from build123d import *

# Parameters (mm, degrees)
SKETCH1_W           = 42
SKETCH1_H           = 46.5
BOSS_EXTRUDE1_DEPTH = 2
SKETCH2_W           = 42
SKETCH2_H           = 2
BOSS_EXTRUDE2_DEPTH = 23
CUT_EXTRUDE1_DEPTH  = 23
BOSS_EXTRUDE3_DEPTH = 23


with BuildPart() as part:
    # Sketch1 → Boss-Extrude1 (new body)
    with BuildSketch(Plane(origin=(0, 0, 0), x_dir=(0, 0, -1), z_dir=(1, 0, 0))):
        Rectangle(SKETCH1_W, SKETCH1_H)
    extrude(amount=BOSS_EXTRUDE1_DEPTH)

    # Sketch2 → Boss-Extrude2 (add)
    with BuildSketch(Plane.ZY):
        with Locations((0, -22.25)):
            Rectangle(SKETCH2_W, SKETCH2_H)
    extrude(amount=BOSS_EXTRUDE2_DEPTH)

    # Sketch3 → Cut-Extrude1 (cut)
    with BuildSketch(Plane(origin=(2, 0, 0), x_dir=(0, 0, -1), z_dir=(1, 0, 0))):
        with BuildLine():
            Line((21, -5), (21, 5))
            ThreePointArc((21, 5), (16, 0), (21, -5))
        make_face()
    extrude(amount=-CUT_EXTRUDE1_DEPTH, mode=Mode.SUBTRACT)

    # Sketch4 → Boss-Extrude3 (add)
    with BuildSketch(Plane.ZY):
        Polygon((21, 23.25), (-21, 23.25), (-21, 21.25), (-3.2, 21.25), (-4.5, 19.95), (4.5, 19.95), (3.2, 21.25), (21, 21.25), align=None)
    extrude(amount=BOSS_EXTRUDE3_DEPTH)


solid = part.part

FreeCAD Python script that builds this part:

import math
import FreeCAD as App
import Part
import Sketcher

doc = App.newDocument("Part")
params = doc.addObject("Spreadsheet::Sheet", "Params")
for row, (alias, value) in enumerate([
    ("sketch1_height", "42 mm"),
    ("sketch1_width", "46.5 mm"),
    ("pad1_length", "2 mm"),
    ("sketch2_width", "2 mm"),
    ("sketch2_height", "42 mm"),
    ("pad2_length", "23 mm"),
    ("sketch3_radius", "5 mm"),
    ("pocket1_length", "23 mm"),
    ("sketch4_width", "2 mm"),
    ("sketch4_height", "42 mm"),
    ("sketch4_height2", "9 mm"),
    ("sketch4_height3", "17.8 mm"),
    ("pad3_length", "23 mm"),
], start=1):
    params.set(f"A{row}", alias)
    params.set(f"B{row}", "=" + value)
    params.setAlias(f"B{row}", alias)

body = doc.addObject("PartDesign::Body", "Body")

sketch1 = doc.addObject("Sketcher::SketchObject", "Sketch")
body.addObject(sketch1)
sketch1.AttachmentSupport = (doc.YZ_Plane, [""])
sketch1.MapMode = "FlatFace"
sketch1.addGeometry(Part.LineSegment(App.Vector(23, 21, 0), App.Vector(-23, 21, 0)), False)
sketch1.addGeometry(Part.LineSegment(App.Vector(-23, 21, 0), App.Vector(-23, -21, 0)), False)
sketch1.addGeometry(Part.LineSegment(App.Vector(-23, -21, 0), App.Vector(23, -21, 0)), False)
sketch1.addGeometry(Part.LineSegment(App.Vector(23, -21, 0), App.Vector(23, 21, 0)), False)
sketch1.addConstraint(Sketcher.Constraint("Coincident", 0, 2, 1, 1))
sketch1.addConstraint(Sketcher.Constraint("Coincident", 1, 2, 2, 1))
sketch1.addConstraint(Sketcher.Constraint("Coincident", 2, 2, 3, 1))
sketch1.addConstraint(Sketcher.Constraint("Coincident", 3, 2, 0, 1))
sketch1.addConstraint(Sketcher.Constraint("Horizontal", 0))
sketch1.addConstraint(Sketcher.Constraint("Vertical", 1))
sketch1.addConstraint(Sketcher.Constraint("Horizontal", 2))
sketch1.addConstraint(Sketcher.Constraint("Vertical", 3))
sketch1.addConstraint(Sketcher.Constraint("Symmetric", 0, 2, 2, 2, -1, 1))
sketch1.addConstraint(Sketcher.Constraint("DistanceY", 1, 2, 1, 1, 42.0))
sketch1.addConstraint(Sketcher.Constraint("DistanceX", 0, 2, 0, 1, 46.5))
sketch1.setExpression("Constraints[9]", "Params.sketch1_height")
sketch1.setExpression("Constraints[10]", "Params.sketch1_width")
pad1 = doc.addObject("PartDesign::Pad", "Pad")
body.addObject(pad1)
pad1.Profile = sketch1
pad1.setExpression("Length", "Params.pad1_length")

sketch2 = doc.addObject("Sketcher::SketchObject", "Sketch001")
body.addObject(sketch2)
sketch2.AttachmentSupport = (doc.YZ_Plane, [""])
sketch2.MapMode = "FlatFace"
sketch2.addGeometry(Part.LineSegment(App.Vector(-21.2, -21, 0), App.Vector(-23.2, -21, 0)), False)
sketch2.addGeometry(Part.LineSegment(App.Vector(-23.2, -21, 0), App.Vector(-23.2, 21, 0)), False)
sketch2.addGeometry(Part.LineSegment(App.Vector(-23.2, 21, 0), App.Vector(-21.2, 21, 0)), False)
sketch2.addGeometry(Part.LineSegment(App.Vector(-21.2, 21, 0), App.Vector(-21.2, -21, 0)), False)
sketch2.addConstraint(Sketcher.Constraint("Coincident", 0, 2, 1, 1))
sketch2.addConstraint(Sketcher.Constraint("Coincident", 1, 2, 2, 1))
sketch2.addConstraint(Sketcher.Constraint("Coincident", 2, 2, 3, 1))
sketch2.addConstraint(Sketcher.Constraint("Coincident", 3, 2, 0, 1))
sketch2.addConstraint(Sketcher.Constraint("Horizontal", 0))
sketch2.addConstraint(Sketcher.Constraint("Vertical", 1))
sketch2.addConstraint(Sketcher.Constraint("Horizontal", 2))
sketch2.addConstraint(Sketcher.Constraint("Vertical", 3))
sketch2.addConstraint(Sketcher.Constraint("DistanceX", 0, 2, 0, 1, 2.0))
sketch2.addConstraint(Sketcher.Constraint("DistanceY", 1, 1, 1, 2, 42.0))
sketch2.addConstraint(Sketcher.Constraint("DistanceY", 0, 2, -1, 1, 21.0))
sketch2.addConstraint(Sketcher.Constraint("DistanceX", 0, 2, -1, 1, 23.25))
sketch2.setExpression("Constraints[8]", "Params.sketch2_width")
sketch2.setExpression("Constraints[9]", "Params.sketch2_height")
pad2 = doc.addObject("PartDesign::Pad", "Pad001")
body.addObject(pad2)
pad2.Profile = sketch2
pad2.setExpression("Length", "Params.pad2_length")
pad2.Reversed = True

sketch3 = doc.addObject("Sketcher::SketchObject", "Sketch002")
body.addObject(sketch3)
sketch3.AttachmentSupport = (doc.YZ_Plane, [""])
sketch3.MapMode = "FlatFace"
sketch3.AttachmentOffset = App.Placement(App.Vector(0, 0, 2), App.Rotation())
sketch3.addGeometry(Part.LineSegment(App.Vector(-5, -21, 0), App.Vector(5, -21, 0)), False)
sketch3.addGeometry(Part.ArcOfCircle(Part.Circle(App.Vector(0, -21, 0), App.Vector(0, 0, 1), 5), math.radians(0), math.radians(180)), False)
sketch3.addConstraint(Sketcher.Constraint("Coincident", 0, 1, 1, 2))
sketch3.addConstraint(Sketcher.Constraint("Coincident", 1, 1, 0, 2))
sketch3.addConstraint(Sketcher.Constraint("Horizontal", 0))
sketch3.addConstraint(Sketcher.Constraint("PointOnObject", 1, 3, -2))
sketch3.addConstraint(Sketcher.Constraint("Horizontal", 1, 3, 0, 1))
sketch3.addConstraint(Sketcher.Constraint("Radius", 1, 5.0))
sketch3.addConstraint(Sketcher.Constraint("DistanceY", 1, 3, -1, 1, 21.0))
sketch3.setExpression("Constraints[5]", "Params.sketch3_radius")
pocket1 = doc.addObject("PartDesign::Pocket", "Pocket")
body.addObject(pocket1)
pocket1.Profile = sketch3
pocket1.setExpression("Length", "Params.pocket1_length")

sketch4 = doc.addObject("Sketcher::SketchObject", "Sketch003")
body.addObject(sketch4)
sketch4.AttachmentSupport = (doc.YZ_Plane, [""])
sketch4.MapMode = "FlatFace"
sketch4.addGeometry(Part.LineSegment(App.Vector(23.2, 21, 0), App.Vector(23.2, -21, 0)), False)
sketch4.addGeometry(Part.LineSegment(App.Vector(23.2, -21, 0), App.Vector(21.2, -21, 0)), False)
sketch4.addGeometry(Part.LineSegment(App.Vector(21.2, -21, 0), App.Vector(21.2, -3.2, 0)), False)
sketch4.addGeometry(Part.LineSegment(App.Vector(21.2, -3.2, 0), App.Vector(19.9, -4.5, 0)), False)
sketch4.addGeometry(Part.LineSegment(App.Vector(19.9, -4.5, 0), App.Vector(19.9, 4.5, 0)), False)
sketch4.addGeometry(Part.LineSegment(App.Vector(19.9, 4.5, 0), App.Vector(21.2, 3.2, 0)), False)
sketch4.addGeometry(Part.LineSegment(App.Vector(21.2, 3.2, 0), App.Vector(21.2, 21, 0)), False)
sketch4.addGeometry(Part.LineSegment(App.Vector(21.2, 21, 0), App.Vector(23.2, 21, 0)), False)
sketch4.addConstraint(Sketcher.Constraint("Coincident", 0, 2, 1, 1))
sketch4.addConstraint(Sketcher.Constraint("Coincident", 1, 2, 2, 1))
sketch4.addConstraint(Sketcher.Constraint("Coincident", 2, 2, 3, 1))
sketch4.addConstraint(Sketcher.Constraint("Coincident", 3, 2, 4, 1))
sketch4.addConstraint(Sketcher.Constraint("Coincident", 4, 2, 5, 1))
sketch4.addConstraint(Sketcher.Constraint("Coincident", 5, 2, 6, 1))
sketch4.addConstraint(Sketcher.Constraint("Coincident", 6, 2, 7, 1))
sketch4.addConstraint(Sketcher.Constraint("Coincident", 7, 2, 0, 1))
sketch4.addConstraint(Sketcher.Constraint("Vertical", 0))
sketch4.addConstraint(Sketcher.Constraint("Horizontal", 1))
sketch4.addConstraint(Sketcher.Constraint("Vertical", 2))
sketch4.addConstraint(Sketcher.Constraint("Vertical", 4))
sketch4.addConstraint(Sketcher.Constraint("Vertical", 6))
sketch4.addConstraint(Sketcher.Constraint("Horizontal", 7))
sketch4.addConstraint(Sketcher.Constraint("Symmetric", 2, 2, 5, 2, -1))
sketch4.addConstraint(Sketcher.Constraint("Perpendicular", 3, 5))
sketch4.addConstraint(Sketcher.Constraint("Equal", 2, 6))
sketch4.addConstraint(Sketcher.Constraint("Equal", 3, 5))
sketch4.addConstraint(Sketcher.Constraint("DistanceX", 1, 2, 1, 1, 2.0))
sketch4.addConstraint(Sketcher.Constraint("DistanceY", 0, 2, 0, 1, 42.0))
sketch4.addConstraint(Sketcher.Constraint("DistanceY", 4, 1, 4, 2, 9.0))
sketch4.addConstraint(Sketcher.Constraint("DistanceY", 2, 1, 2, 2, 17.8))
sketch4.addConstraint(Sketcher.Constraint("DistanceX", -1, 1, 0, 2, 23.25))
sketch4.setExpression("Constraints[18]", "Params.sketch4_width")
sketch4.setExpression("Constraints[19]", "Params.sketch4_height")
sketch4.setExpression("Constraints[20]", "Params.sketch4_height2")
sketch4.setExpression("Constraints[21]", "Params.sketch4_height3")
pad3 = doc.addObject("PartDesign::Pad", "Pad002")
body.addObject(pad3)
pad3.Profile = sketch4
pad3.setExpression("Length", "Params.pad3_length")
pad3.Reversed = True

doc.recompute()
